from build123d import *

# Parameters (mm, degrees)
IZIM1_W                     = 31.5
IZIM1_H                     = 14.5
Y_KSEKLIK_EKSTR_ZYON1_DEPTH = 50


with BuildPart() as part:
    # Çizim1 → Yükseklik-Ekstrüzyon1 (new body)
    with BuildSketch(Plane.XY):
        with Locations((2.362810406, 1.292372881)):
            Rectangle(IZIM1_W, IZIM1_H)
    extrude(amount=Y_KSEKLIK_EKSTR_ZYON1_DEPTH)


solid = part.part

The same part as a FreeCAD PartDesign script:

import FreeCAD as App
import Part
import Sketcher
Q = App.Units.Quantity


def add_polygon(sketch, points):
    """Adds a closed chain of lines whose ends are joined by coincident constraints."""
    first, n = sketch.GeometryCount, len(points)
    for a, b in zip(points, points[1:] + points[:1]):
        sketch.addGeometry(Part.LineSegment(App.Vector(*a, 0), App.Vector(*b, 0)), False)
    for i in range(n):
        sketch.addConstraint(Sketcher.Constraint("Coincident", first + i, 2, first + (i + 1) % n, 1))

doc = App.newDocument("Part")
body = doc.addObject("PartDesign::Body", "Body")

# Sketch on XY plane
sketch1 = doc.addObject("Sketcher::SketchObject", "Sketch")
body.addObject(sketch1)
sketch1.AttachmentSupport = (doc.XY_Plane, [""])
sketch1.MapMode = "FlatFace"
add_polygon(sketch1, [(-13, 9), (-13, -6), (18, -6), (18, 9)])  # lines 0-3
sketch1.addConstraint(Sketcher.Constraint("Vertical", 0))
sketch1.addConstraint(Sketcher.Constraint("Horizontal", 1))
sketch1.addConstraint(Sketcher.Constraint("Vertical", 2))
sketch1.addConstraint(Sketcher.Constraint("Horizontal", 3))
sketch1.addConstraint(Sketcher.Constraint("DistanceX", 1, 1, 1, 2, Q("31.5 mm")))
sketch1.addConstraint(Sketcher.Constraint("DistanceY", 0, 2, 0, 1, Q("14.5 mm")))
sketch1.addConstraint(Sketcher.Constraint("DistanceX", 0, 2, -1, 1, Q("13.38719 mm")))
sketch1.addConstraint(Sketcher.Constraint("DistanceY", 0, 2, -1, 1, Q("5.957627 mm")))
pad1 = doc.addObject("PartDesign::Pad", "Pad")
body.addObject(pad1)
pad1.Profile = sketch1
pad1.Length = 50

doc.recompute()
